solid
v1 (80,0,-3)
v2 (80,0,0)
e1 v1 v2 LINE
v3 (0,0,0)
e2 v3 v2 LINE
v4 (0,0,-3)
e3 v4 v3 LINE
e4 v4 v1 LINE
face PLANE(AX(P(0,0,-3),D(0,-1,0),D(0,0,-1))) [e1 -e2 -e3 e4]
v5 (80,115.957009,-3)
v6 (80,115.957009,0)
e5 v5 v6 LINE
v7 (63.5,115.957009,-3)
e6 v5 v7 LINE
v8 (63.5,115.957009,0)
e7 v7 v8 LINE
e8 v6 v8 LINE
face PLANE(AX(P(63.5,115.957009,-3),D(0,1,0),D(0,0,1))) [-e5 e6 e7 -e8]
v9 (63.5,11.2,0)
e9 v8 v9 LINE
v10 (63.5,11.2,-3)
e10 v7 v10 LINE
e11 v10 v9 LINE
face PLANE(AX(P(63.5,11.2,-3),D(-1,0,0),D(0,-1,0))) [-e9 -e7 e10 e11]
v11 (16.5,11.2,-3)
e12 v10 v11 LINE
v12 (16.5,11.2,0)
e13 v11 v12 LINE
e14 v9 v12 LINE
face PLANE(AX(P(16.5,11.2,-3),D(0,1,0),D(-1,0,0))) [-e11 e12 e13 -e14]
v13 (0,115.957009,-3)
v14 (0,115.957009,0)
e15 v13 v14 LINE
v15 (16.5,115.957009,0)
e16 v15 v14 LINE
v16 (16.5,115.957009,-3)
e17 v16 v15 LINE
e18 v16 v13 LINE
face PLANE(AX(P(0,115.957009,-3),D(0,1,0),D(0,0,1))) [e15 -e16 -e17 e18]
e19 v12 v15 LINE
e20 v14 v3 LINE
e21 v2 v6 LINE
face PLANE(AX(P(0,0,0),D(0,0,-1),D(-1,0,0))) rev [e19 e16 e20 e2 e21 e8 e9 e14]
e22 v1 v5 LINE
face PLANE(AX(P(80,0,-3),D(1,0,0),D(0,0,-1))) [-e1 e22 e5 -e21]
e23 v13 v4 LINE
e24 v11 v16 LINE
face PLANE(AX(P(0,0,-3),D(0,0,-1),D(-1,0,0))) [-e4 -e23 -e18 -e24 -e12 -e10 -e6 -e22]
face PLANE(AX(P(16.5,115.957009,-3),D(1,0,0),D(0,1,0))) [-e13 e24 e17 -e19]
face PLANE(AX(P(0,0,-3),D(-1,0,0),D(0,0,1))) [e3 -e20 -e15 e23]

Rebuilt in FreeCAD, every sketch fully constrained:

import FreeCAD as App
import Part
import Sketcher

V = App.Vector
Q = App.Units.Quantity

doc = App.newDocument("Part")
body = doc.addObject("PartDesign::Body", "Body")

sketch1 = body.newObject("Sketcher::SketchObject", "Sketch")
sketch1.AttachmentSupport = (doc.getObject("XY_Plane"), [""])
sketch1.MapMode = "FlatFace"
sketch1.addGeometry([
    Part.LineSegment(V(0, 0, 0), V(80, 0, 0)),
    Part.LineSegment(V(80, 0, 0), V(80, 116, 0)),
    Part.LineSegment(V(80, 116, 0), V(64, 116, 0)),
    Part.LineSegment(V(64, 116, 0), V(64, 11, 0)),
    Part.LineSegment(V(64, 11, 0), V(16, 11, 0)),
    Part.LineSegment(V(16, 11, 0), V(16, 116, 0)),
    Part.LineSegment(V(16, 116, 0), V(0, 116, 0)),
    Part.LineSegment(V(0, 116, 0), V(0, 0, 0)),
], False)
sketch1.addConstraint([
    Sketcher.Constraint("Coincident", 0, 2, 1, 1),
    Sketcher.Constraint("Coincident", 1, 2, 2, 1),
    Sketcher.Constraint("Coincident", 2, 2, 3, 1),
    Sketcher.Constraint("Coincident", 3, 2, 4, 1),
    Sketcher.Constraint("Coincident", 4, 2, 5, 1),
    Sketcher.Constraint("Coincident", 5, 2, 6, 1),
    Sketcher.Constraint("Coincident", 6, 2, 7, 1),
    Sketcher.Constraint("Coincident", 7, 2, 0, 1),
    Sketcher.Constraint("Horizontal", 0),
    Sketcher.Constraint("Vertical", 1),
    Sketcher.Constraint("Horizontal", 2),
    Sketcher.Constraint("Vertical", 3),
    Sketcher.Constraint("Horizontal", 4),
    Sketcher.Constraint("Vertical", 5),
    Sketcher.Constraint("Horizontal", 6),
    Sketcher.Constraint("Vertical", 7),
    Sketcher.Constraint("Coincident", 7, 2, -1, 1),
    Sketcher.Constraint("Horizontal", 2, 2, 5, 2),
    Sketcher.Constraint("Equal", 2, 6),
    Sketcher.Constraint("DistanceX", 0, 1, 0, 2, Q("80 mm")),
    Sketcher.Constraint("DistanceX", 4, 2, 4, 1, Q("47 mm")),
    Sketcher.Constraint("DistanceY", -1, 1, 3, 2, Q("11.2 mm")),
    Sketcher.Constraint("DistanceY", 1, 1, 1, 2, Q("115.957009 mm")),
])
pad1 = body.newObject("PartDesign::Pad", "Pad")
pad1.Profile = sketch1
pad1.Length = 3
pad1.Reversed = True

doc.recompute()
